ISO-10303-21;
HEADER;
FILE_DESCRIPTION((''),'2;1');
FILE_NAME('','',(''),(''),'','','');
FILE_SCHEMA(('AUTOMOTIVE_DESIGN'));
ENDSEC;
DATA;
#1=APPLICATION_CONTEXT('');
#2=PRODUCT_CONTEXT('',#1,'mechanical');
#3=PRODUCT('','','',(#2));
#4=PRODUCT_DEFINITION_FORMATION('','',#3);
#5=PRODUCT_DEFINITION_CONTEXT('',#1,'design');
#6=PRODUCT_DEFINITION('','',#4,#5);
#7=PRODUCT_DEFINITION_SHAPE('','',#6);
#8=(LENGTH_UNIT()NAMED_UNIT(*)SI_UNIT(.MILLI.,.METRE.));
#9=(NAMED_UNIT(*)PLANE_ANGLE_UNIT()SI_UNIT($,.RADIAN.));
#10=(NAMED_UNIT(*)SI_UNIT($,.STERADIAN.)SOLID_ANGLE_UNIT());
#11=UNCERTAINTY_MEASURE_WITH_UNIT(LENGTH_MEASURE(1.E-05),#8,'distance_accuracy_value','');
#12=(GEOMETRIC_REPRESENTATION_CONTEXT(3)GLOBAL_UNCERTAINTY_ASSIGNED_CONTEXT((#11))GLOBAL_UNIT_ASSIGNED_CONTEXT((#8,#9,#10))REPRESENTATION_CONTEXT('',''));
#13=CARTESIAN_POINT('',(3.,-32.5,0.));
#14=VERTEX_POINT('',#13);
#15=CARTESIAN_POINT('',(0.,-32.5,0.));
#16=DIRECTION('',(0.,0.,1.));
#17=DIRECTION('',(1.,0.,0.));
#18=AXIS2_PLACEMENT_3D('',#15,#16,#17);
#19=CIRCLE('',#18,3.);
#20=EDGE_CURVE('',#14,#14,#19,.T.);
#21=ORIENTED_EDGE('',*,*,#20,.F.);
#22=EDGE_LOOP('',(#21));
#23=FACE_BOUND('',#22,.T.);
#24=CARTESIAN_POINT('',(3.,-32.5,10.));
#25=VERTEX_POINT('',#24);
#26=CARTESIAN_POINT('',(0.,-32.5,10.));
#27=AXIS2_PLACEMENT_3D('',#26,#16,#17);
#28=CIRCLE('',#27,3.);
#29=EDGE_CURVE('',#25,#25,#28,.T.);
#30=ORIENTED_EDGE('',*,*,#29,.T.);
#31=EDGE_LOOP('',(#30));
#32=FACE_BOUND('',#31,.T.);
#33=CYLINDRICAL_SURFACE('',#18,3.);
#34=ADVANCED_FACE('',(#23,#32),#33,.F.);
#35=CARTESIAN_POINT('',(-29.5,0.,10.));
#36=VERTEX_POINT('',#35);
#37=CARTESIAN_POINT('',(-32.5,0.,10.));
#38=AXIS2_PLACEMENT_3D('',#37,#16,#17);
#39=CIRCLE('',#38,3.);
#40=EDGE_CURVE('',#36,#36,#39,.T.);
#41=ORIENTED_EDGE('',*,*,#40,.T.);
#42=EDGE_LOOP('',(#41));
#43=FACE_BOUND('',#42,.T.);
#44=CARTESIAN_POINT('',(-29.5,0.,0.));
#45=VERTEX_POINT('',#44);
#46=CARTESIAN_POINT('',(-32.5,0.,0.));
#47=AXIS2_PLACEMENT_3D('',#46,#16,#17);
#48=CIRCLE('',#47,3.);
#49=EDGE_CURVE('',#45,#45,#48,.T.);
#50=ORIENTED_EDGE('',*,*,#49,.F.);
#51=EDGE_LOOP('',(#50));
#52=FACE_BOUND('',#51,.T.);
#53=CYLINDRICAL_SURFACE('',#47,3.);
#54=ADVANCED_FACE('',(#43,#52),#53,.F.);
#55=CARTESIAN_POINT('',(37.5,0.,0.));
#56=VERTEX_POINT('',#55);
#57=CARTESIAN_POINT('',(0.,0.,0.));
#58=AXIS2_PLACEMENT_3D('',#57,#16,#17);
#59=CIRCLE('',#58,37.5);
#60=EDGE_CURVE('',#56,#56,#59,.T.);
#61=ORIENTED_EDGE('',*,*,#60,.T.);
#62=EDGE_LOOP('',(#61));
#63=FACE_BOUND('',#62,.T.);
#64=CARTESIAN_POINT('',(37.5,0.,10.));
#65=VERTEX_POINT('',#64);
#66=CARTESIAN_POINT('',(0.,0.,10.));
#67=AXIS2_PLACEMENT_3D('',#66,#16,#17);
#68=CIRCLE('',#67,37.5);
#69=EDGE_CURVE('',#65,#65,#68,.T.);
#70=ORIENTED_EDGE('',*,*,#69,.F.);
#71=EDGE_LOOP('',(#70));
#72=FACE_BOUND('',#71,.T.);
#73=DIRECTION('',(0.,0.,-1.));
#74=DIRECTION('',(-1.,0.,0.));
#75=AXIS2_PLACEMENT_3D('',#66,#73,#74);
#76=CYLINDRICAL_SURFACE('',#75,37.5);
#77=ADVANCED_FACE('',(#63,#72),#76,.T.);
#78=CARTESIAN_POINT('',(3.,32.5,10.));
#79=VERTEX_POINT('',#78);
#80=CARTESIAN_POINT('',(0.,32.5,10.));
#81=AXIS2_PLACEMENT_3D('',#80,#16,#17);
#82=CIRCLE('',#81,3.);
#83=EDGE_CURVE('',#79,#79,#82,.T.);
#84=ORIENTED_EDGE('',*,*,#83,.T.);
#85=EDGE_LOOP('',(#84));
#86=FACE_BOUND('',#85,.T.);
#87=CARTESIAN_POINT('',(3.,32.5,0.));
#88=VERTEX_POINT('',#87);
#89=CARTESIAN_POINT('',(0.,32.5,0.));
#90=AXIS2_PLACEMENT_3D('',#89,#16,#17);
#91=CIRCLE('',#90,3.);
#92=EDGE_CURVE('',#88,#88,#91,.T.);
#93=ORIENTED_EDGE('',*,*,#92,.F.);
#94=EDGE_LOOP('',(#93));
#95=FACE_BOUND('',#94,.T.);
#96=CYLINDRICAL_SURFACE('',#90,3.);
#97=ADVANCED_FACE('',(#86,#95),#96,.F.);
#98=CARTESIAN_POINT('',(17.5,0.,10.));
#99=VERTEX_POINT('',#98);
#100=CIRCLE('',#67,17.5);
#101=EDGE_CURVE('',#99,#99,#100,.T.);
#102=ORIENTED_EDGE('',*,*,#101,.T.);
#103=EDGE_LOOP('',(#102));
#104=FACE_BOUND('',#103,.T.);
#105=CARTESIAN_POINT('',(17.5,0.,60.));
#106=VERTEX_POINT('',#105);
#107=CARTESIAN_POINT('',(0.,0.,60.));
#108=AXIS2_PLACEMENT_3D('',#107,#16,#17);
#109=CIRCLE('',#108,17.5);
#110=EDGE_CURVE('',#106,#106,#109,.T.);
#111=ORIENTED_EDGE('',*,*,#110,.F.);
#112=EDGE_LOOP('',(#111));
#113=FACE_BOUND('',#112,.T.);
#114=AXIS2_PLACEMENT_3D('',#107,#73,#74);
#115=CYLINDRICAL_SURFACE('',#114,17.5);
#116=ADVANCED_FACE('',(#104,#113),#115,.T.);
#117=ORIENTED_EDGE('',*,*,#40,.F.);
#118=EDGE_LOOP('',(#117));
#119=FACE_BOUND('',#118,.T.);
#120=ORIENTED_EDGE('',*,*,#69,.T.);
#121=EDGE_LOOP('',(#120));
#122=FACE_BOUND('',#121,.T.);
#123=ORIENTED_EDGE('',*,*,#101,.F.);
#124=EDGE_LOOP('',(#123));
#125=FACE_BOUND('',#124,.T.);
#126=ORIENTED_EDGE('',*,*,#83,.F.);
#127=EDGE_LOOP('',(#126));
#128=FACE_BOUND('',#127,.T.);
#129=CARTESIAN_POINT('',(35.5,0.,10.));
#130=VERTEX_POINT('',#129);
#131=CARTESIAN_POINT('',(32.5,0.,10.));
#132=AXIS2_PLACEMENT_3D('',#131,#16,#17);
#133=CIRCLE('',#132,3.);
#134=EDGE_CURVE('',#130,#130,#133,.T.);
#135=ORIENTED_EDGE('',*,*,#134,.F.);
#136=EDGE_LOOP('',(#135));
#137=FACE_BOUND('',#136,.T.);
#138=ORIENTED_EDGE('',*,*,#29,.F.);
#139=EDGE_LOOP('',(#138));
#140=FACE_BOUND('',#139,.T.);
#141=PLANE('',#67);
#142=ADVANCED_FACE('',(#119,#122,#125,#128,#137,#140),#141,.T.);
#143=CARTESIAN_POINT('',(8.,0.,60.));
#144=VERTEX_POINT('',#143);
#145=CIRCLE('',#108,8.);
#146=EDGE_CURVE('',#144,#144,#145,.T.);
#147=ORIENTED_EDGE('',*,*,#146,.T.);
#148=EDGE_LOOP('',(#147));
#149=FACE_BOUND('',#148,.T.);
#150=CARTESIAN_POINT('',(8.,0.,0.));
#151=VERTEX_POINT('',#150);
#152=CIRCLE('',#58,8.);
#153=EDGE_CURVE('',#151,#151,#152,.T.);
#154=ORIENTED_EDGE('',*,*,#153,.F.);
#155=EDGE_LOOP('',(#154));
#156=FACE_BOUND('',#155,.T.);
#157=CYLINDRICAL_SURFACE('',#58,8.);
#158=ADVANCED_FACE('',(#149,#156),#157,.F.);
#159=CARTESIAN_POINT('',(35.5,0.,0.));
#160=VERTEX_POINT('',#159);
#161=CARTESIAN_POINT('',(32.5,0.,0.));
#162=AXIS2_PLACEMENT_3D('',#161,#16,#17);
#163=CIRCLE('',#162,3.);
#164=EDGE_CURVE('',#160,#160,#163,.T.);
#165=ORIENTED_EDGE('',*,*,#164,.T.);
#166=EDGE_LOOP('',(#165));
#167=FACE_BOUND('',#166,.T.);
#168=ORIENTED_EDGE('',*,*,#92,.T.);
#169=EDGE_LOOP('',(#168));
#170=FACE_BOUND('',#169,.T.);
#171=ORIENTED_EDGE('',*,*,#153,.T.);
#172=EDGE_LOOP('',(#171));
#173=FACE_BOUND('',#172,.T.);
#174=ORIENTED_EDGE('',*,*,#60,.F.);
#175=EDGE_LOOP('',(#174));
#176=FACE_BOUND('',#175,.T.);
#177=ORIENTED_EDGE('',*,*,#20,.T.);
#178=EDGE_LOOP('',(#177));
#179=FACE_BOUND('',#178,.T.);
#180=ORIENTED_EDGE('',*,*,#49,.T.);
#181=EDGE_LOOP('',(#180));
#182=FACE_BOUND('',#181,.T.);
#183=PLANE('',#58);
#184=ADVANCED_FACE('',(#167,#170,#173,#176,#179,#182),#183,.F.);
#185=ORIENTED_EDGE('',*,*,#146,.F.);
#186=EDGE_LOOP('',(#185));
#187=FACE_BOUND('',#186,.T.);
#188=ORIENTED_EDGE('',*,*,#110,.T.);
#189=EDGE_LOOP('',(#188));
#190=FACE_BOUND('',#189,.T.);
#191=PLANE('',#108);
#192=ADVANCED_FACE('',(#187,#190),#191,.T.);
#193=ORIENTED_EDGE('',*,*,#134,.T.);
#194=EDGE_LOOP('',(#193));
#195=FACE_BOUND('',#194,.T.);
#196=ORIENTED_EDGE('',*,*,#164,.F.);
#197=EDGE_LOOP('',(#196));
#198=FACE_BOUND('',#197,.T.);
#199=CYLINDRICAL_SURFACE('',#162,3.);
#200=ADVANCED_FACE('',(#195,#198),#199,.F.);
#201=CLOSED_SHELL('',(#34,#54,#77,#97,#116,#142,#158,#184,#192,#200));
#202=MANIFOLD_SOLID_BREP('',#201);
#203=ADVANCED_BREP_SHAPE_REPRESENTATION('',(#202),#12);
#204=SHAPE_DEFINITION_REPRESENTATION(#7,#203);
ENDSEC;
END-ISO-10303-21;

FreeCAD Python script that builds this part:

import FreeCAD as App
import Part
import Sketcher

doc = App.newDocument("Part")
params = doc.addObject("Spreadsheet::Sheet", "Params")
for row, (alias, value) in enumerate([
    ("sketch1_diameter", "75 mm"),
    ("pad1_length", "10 mm"),
    ("sketch2_diameter", "35 mm"),
    ("pad2_length", "50 mm"),
    ("sketch3_diameter", "16 mm"),
    ("sketch4_diameter", "6 mm"),
    ("pocket2_length", "10 mm"),
], start=1):
    params.set(f"A{row}", alias)
    params.set(f"B{row}", "=" + value)
    params.setAlias(f"B{row}", alias)

body = doc.addObject("PartDesign::Body", "Body")

# Sketch on XY plane
sketch1 = doc.addObject("Sketcher::SketchObject", "Sketch")
body.addObject(sketch1)
sketch1.AttachmentSupport = (doc.XY_Plane, [""])
sketch1.MapMode = "FlatFace"
sketch1.addGeometry(Part.Circle(App.Vector(0, 0, 0), App.Vector(0, 0, 1), 37.5), False)
sketch1.addConstraint(Sketcher.Constraint("Coincident", 0, 3, -1, 1))
sketch1.addConstraint(Sketcher.Constraint("Diameter", 0, 75.0))
sketch1.setExpression("Constraints[1]", "Params.sketch1_diameter")
pad1 = doc.addObject("PartDesign::Pad", "Pad")
body.addObject(pad1)
pad1.Profile = sketch1
pad1.setExpression("Length", "Params.pad1_length")

# Sketch on XY plane
sketch2 = doc.addObject("Sketcher::SketchObject", "Sketch001")
body.addObject(sketch2)
sketch2.AttachmentSupport = (doc.XY_Plane, [""])
sketch2.MapMode = "FlatFace"
sketch2.AttachmentOffset = App.Placement(App.Vector(0, 0, 10), App.Rotation())
sketch2.addGeometry(Part.Circle(App.Vector(0, 0, 0), App.Vector(0, 0, 1), 17.5), False)
sketch2.addConstraint(Sketcher.Constraint("Coincident", 0, 3, -1, 1))
sketch2.addConstraint(Sketcher.Constraint("Diameter", 0, 35.0))
sketch2.setExpression("Constraints[1]", "Params.sketch2_diameter")
pad2 = doc.addObject("PartDesign::Pad", "Pad001")
body.addObject(pad2)
pad2.Profile = sketch2
pad2.setExpression("Length", "Params.pad2_length")

# Sketch on XY plane
sketch3 = doc.addObject("Sketcher::SketchObject", "Sketch002")
body.addObject(sketch3)
sketch3.AttachmentSupport = (doc.XY_Plane, [""])
sketch3.MapMode = "FlatFace"
sketch3.AttachmentOffset = App.Placement(App.Vector(0, 0, 60), App.Rotation())
sketch3.addGeometry(Part.Circle(App.Vector(0, 0, 0), App.Vector(0, 0, 1), 8), False)
sketch3.addConstraint(Sketcher.Constraint("Coincident", 0, 3, -1, 1))
sketch3.addConstraint(Sketcher.Constraint("Diameter", 0, 16.0))
sketch3.setExpression("Constraints[1]", "Params.sketch3_diameter")
pocket1 = doc.addObject("PartDesign::Pocket", "Pocket")
body.addObject(pocket1)
pocket1.Profile = sketch3
pocket1.Type = "ThroughAll"

# Sketch on XY plane
sketch4 = doc.addObject("Sketcher::SketchObject", "Sketch003")
body.addObject(sketch4)
sketch4.AttachmentSupport = (doc.XY_Plane, [""])
sketch4.MapMode = "FlatFace"
sketch4.AttachmentOffset = App.Placement(App.Vector(0, 0, 10), App.Rotation())
sketch4.addGeometry(Part.Circle(App.Vector(0, 32.5, 0), App.Vector(0, 0, 1), 3), False)
sketch4.addGeometry(Part.Circle(App.Vector(32.5, 0, 0), App.Vector(0, 0, 1), 3), False)
sketch4.addGeometry(Part.Circle(App.Vector(0, -32.5, 0), App.Vector(0, 0, 1), 3), False)
sketch4.addGeometry(Part.Circle(App.Vector(-32.5, 0, 0), App.Vector(0, 0, 1), 3), False)
sketch4.addConstraint(Sketcher.Constraint("Equal", 0, 1))
sketch4.addConstraint(Sketcher.Constraint("Equal", 1, 2))
sketch4.addConstraint(Sketcher.Constraint("Equal", 2, 3))
sketch4.addConstraint(Sketcher.Constraint("Symmetric", 0, 3, 2, 3, -1, 1))
sketch4.addConstraint(Sketcher.Constraint("Symmetric", 1, 3, 3, 3, -1, 1))
sketch4.addConstraint(Sketcher.Constraint("PointOnObject", 0, 3, -2))
sketch4.addConstraint(Sketcher.Constraint("PointOnObject", 1, 3, -1))
sketch4.addConstraint(Sketcher.Constraint("Diameter", 0, 6.0))
sketch4.addConstraint(Sketcher.Constraint("DistanceY", 2, 3, 0, 3, 65.0))
sketch4.addConstraint(Sketcher.Constraint("DistanceX", 3, 3, 1, 3, 65.0))
sketch4.setExpression("Constraints[7]", "Params.sketch4_diameter")
pocket2 = doc.addObject("PartDesign::Pocket", "Pocket001")
body.addObject(pocket2)
pocket2.Profile = sketch4
pocket2.setExpression("Length", "Params.pocket2_length")

doc.recompute()
